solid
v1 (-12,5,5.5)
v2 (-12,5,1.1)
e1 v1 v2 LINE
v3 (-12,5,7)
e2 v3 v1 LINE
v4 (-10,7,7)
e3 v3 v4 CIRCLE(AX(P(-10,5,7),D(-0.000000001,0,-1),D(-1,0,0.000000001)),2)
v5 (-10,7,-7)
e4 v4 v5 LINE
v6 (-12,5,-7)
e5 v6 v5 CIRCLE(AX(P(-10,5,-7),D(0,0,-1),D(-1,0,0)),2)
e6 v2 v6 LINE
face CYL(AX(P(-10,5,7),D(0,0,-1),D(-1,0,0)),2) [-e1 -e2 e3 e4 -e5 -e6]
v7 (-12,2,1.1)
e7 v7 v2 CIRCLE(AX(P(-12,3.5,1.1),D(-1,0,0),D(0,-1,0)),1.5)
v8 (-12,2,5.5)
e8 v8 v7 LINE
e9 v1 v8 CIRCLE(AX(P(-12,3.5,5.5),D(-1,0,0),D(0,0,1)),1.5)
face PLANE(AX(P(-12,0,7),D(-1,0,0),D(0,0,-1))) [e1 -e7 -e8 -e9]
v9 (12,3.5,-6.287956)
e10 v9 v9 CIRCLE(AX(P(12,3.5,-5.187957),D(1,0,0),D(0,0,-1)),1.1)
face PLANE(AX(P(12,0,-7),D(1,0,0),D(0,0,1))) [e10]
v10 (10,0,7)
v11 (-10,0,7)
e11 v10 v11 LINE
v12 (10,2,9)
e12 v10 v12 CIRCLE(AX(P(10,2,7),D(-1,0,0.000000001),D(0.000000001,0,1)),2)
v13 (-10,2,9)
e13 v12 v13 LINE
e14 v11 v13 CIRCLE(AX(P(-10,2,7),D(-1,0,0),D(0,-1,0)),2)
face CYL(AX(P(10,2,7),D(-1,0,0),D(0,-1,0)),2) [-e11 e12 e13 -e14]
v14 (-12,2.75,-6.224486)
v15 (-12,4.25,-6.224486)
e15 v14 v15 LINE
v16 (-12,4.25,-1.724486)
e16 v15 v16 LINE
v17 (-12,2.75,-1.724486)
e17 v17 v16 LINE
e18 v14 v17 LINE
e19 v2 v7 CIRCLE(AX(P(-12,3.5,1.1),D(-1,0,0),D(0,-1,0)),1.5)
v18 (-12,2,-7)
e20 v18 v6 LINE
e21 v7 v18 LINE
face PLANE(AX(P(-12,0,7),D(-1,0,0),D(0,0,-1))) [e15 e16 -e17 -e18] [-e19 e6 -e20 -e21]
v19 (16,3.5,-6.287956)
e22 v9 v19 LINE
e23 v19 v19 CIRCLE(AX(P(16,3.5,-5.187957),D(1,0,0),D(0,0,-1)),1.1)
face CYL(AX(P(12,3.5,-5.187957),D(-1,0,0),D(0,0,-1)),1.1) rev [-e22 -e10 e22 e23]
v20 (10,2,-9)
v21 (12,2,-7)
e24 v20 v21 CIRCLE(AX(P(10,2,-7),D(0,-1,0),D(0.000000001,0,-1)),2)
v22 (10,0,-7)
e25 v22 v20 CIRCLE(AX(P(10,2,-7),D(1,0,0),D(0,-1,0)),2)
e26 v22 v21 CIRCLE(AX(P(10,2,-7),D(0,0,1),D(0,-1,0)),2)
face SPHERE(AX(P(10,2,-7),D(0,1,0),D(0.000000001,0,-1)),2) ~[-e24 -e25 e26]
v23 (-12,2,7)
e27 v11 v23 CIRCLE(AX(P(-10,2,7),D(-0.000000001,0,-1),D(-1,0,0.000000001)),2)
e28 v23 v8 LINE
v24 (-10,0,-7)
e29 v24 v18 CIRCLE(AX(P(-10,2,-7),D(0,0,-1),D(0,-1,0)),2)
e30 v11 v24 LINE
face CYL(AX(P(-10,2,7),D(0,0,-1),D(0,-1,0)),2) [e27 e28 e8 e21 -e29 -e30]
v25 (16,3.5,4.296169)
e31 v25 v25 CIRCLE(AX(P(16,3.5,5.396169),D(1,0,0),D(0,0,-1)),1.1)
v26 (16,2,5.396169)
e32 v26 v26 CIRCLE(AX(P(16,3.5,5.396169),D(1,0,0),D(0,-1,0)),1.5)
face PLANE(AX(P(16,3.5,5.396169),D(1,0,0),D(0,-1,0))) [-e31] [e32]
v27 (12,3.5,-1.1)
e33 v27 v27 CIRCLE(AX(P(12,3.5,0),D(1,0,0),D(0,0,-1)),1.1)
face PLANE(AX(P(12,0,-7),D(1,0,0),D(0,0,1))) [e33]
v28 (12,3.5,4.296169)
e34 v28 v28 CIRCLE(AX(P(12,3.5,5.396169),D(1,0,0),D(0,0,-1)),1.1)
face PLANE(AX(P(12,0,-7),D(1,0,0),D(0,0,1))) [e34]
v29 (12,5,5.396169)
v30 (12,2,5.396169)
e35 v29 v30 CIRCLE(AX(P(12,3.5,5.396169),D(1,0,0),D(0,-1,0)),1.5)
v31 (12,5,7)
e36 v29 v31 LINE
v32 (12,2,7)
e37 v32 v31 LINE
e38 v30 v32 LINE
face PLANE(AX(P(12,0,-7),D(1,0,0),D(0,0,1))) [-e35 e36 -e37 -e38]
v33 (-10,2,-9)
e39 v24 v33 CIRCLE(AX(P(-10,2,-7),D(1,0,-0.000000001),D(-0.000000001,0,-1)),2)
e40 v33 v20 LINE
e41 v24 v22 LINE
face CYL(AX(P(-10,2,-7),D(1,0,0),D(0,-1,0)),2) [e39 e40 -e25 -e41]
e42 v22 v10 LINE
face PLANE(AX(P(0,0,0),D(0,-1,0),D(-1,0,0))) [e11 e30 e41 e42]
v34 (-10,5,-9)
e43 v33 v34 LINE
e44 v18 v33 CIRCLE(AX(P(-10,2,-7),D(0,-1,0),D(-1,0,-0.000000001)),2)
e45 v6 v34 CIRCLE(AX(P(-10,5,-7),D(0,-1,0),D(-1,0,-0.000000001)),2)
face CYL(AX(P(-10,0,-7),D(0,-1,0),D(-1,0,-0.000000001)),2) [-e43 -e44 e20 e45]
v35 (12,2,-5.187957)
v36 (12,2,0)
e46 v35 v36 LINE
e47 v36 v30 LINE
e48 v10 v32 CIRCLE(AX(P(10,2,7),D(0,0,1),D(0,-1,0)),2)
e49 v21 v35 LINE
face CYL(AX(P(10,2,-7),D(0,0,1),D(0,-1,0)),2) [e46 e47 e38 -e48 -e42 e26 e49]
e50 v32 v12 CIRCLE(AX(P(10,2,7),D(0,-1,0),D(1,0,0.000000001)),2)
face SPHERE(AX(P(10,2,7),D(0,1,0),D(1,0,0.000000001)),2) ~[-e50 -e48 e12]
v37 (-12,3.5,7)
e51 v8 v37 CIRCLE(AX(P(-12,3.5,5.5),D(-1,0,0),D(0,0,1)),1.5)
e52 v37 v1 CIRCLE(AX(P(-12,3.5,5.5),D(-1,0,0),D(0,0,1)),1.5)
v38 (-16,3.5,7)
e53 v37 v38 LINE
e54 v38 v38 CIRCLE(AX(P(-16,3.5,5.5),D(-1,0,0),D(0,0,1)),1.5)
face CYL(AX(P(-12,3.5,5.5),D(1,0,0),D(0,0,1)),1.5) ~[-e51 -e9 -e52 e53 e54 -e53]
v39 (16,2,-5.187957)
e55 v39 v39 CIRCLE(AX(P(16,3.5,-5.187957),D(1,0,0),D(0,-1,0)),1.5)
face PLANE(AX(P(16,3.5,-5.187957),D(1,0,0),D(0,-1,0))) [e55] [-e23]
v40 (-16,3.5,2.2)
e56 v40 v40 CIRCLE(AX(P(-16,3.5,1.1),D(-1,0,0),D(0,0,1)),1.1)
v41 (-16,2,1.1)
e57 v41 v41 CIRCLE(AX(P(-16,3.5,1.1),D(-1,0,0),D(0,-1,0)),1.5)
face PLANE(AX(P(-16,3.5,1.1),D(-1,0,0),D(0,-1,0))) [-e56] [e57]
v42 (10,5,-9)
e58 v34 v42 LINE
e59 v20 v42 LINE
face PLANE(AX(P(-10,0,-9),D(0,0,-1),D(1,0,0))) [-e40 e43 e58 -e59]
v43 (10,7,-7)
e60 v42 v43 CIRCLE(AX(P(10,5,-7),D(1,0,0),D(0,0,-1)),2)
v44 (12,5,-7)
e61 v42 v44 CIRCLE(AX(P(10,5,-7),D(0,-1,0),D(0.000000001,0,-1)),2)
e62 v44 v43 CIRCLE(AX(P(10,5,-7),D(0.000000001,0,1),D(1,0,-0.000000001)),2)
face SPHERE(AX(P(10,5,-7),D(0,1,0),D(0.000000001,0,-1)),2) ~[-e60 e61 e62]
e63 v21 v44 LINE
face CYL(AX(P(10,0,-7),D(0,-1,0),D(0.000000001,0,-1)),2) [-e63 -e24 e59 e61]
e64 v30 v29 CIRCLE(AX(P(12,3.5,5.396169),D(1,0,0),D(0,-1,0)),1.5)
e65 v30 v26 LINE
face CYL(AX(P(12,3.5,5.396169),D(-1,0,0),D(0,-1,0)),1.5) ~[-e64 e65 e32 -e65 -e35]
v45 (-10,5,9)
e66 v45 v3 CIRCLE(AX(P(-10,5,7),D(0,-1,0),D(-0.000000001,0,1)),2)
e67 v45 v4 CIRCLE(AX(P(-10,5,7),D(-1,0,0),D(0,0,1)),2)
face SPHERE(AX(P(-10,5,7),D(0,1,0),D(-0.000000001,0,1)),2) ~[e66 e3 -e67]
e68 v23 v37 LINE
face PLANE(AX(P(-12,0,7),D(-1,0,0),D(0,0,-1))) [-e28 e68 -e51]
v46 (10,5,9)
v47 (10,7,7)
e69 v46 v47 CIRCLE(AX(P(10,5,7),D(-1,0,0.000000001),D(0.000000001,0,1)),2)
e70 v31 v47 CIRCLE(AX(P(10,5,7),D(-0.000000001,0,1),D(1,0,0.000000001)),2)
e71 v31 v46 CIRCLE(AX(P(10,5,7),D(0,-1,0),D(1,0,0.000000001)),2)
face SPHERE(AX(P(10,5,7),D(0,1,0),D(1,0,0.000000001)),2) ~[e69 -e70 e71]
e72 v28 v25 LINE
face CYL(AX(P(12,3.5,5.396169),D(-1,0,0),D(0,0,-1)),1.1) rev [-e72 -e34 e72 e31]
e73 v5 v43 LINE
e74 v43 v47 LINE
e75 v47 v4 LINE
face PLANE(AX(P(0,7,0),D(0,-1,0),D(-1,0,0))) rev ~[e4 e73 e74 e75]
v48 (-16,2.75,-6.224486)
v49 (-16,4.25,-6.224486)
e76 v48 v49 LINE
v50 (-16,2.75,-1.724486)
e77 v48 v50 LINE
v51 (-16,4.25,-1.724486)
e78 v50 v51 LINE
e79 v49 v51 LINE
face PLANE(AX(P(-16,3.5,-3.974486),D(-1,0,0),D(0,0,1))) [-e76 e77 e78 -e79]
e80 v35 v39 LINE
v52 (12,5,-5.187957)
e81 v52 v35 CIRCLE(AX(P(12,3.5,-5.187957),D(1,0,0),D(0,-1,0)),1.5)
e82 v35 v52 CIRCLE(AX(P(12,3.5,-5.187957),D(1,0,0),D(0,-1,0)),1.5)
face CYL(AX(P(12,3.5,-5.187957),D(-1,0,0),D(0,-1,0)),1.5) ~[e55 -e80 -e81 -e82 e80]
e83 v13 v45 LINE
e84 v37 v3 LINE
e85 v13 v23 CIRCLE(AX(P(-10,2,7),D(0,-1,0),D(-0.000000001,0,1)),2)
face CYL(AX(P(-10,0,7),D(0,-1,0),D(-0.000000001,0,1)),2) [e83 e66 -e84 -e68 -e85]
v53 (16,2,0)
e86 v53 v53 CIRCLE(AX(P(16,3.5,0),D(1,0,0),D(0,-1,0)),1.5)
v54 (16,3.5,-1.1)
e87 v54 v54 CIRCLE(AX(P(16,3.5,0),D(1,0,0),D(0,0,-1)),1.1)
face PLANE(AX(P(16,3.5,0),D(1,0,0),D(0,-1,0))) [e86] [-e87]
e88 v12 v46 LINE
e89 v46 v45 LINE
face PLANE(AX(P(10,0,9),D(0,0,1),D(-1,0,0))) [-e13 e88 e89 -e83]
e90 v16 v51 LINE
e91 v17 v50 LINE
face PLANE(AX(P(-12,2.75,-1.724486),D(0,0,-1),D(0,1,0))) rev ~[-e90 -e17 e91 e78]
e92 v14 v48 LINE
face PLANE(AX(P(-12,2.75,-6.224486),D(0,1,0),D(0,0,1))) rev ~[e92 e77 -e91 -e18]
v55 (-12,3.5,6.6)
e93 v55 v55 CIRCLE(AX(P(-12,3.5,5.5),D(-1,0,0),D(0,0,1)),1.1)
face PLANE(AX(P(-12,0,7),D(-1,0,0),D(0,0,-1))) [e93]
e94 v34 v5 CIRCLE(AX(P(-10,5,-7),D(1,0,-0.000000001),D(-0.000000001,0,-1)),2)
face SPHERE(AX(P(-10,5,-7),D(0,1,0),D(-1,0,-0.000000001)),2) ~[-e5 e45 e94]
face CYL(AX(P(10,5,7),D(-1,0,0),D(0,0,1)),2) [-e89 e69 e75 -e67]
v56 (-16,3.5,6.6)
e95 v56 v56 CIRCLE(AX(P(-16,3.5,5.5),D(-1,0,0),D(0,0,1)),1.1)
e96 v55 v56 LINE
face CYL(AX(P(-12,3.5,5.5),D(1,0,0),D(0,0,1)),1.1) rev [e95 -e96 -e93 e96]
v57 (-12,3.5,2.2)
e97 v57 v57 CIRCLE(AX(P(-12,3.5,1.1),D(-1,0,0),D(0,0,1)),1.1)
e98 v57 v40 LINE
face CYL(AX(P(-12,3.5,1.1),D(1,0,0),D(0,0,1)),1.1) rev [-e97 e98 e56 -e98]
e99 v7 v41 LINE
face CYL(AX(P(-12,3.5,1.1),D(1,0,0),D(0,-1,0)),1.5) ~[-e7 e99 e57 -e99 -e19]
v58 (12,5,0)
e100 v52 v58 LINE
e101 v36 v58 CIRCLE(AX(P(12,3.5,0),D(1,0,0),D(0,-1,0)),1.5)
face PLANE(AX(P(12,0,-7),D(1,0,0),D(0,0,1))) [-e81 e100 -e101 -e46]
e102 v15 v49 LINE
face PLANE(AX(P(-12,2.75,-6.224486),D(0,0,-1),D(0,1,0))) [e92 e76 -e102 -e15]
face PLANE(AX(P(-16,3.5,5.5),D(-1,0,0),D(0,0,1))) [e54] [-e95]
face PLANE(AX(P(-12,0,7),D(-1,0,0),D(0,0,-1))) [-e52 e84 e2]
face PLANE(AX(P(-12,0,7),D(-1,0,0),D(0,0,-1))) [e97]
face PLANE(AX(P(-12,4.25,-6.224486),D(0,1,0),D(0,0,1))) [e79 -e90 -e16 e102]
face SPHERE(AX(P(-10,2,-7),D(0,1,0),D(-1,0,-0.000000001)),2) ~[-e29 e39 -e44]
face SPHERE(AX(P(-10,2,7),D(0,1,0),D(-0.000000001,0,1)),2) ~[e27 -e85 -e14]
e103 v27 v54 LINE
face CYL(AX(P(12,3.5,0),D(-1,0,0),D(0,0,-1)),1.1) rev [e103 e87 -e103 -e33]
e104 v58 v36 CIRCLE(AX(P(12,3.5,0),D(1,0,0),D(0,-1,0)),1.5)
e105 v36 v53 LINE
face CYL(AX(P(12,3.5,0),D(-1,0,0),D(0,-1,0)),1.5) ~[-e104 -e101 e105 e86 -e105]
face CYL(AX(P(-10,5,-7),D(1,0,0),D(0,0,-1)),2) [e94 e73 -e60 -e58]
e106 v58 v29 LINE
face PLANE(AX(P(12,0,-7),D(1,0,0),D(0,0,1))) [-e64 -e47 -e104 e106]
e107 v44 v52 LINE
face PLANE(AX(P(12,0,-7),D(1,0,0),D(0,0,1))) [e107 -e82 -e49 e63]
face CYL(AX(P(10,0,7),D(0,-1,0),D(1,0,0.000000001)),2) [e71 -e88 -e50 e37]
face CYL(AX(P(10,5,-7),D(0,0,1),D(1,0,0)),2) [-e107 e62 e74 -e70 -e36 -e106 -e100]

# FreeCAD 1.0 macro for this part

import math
import FreeCAD as App
import Part
import Sketcher
Q = App.Units.Quantity


def edges_at(feature, points):
    """Names of the edges that pass closest to the given points."""
    edges = feature.Shape.Edges
    near = lambda p: min(range(len(edges)), key=lambda i: edges[i].distToShape(Part.Vertex(*p))[0])
    return sorted({f"Edge{near(p) + 1}" for p in points})


def add_polygon(sketch, points):
    """Adds a closed chain of lines whose ends are joined by coincident constraints."""
    first, n = sketch.GeometryCount, len(points)
    for a, b in zip(points, points[1:] + points[:1]):
        sketch.addGeometry(Part.LineSegment(App.Vector(*a, 0), App.Vector(*b, 0)), False)
    for i in range(n):
        sketch.addConstraint(Sketcher.Constraint("Coincident", first + i, 2, first + (i + 1) % n, 1))

doc = App.newDocument("Part")
body = doc.addObject("PartDesign::Body", "Body")

# Sketch on XZ plane
sketch1 = doc.addObject("Sketcher::SketchObject", "Sketch")
body.addObject(sketch1)
sketch1.AttachmentSupport = (doc.XZ_Plane, [""])
sketch1.MapMode = "FlatFace"
sketch1.addGeometry([
    Part.LineSegment(App.Vector(-10, 9, 0), App.Vector(10, 9, 0)),  # 0
    Part.ArcOfCircle(Part.Circle(App.Vector(10, 7, 0), App.Vector(0, 0, 1), 2), math.radians(0), math.radians(90)),  # 1
    Part.LineSegment(App.Vector(12, 7, 0), App.Vector(12, -7, 0)),  # 2
    Part.ArcOfCircle(Part.Circle(App.Vector(10, -7, 0), App.Vector(0, 0, 1), 2), math.radians(-90), math.radians(0)),  # 3
    Part.LineSegment(App.Vector(10, -9, 0), App.Vector(-10, -9, 0)),  # 4
    Part.ArcOfCircle(Part.Circle(App.Vector(-10, -7, 0), App.Vector(0, 0, 1), 2), math.radians(-180), math.radians(-90)),  # 5
    Part.LineSegment(App.Vector(-12, -7, 0), App.Vector(-12, 7, 0)),  # 6
    Part.ArcOfCircle(Part.Circle(App.Vector(-10, 7, 0), App.Vector(0, 0, 1), 2), math.radians(90), math.radians(180)),  # 7
], False)
sketch1.addConstraint([
    Sketcher.Constraint("Tangent", 0, 2, 1, 2),
    Sketcher.Constraint("Tangent", 1, 1, 2, 1),
    Sketcher.Constraint("Tangent", 2, 2, 3, 2),
    Sketcher.Constraint("Tangent", 3, 1, 4, 1),
    Sketcher.Constraint("Tangent", 4, 2, 5, 2),
    Sketcher.Constraint("Tangent", 5, 1, 6, 1),
    Sketcher.Constraint("Tangent", 6, 2, 7, 2),
    Sketcher.Constraint("Tangent", 7, 1, 0, 1),
    Sketcher.Constraint("Horizontal", 0),
    Sketcher.Constraint("Vertical", 2),
    Sketcher.Constraint("Horizontal", 4),
    Sketcher.Constraint("Vertical", 6),
    Sketcher.Constraint("Equal", 1, 3),
    Sketcher.Constraint("Equal", 3, 5),
    Sketcher.Constraint("Equal", 5, 7),
    Sketcher.Constraint("Symmetric", 1, 3, 5, 3, -1, 1),
    Sketcher.Constraint("Radius", 1, Q("2 mm")),
    Sketcher.Constraint("DistanceX", 0, 1, 0, 2, Q("20 mm")),
    Sketcher.Constraint("DistanceY", 2, 2, 2, 1, Q("14 mm")),
])
pad1 = doc.addObject("PartDesign::Pad", "Pad")
body.addObject(pad1)
pad1.Profile = sketch1
pad1.Length = 7
pad1.Reversed = True
doc.recompute()

fillet = doc.addObject("PartDesign::Fillet", "Fillet")
body.addObject(fillet)
fillet.Base = (pad1, edges_at(pad1, [
    (11.414, 7, 8.414),
    (12, 7, 0),
    (11.414, 7, -8.414),
    (0, 7, -9),
    (-11.414, 7, -8.414),
    (-12, 7, 0),
    (-11.414, 7, 8.414),
    (0, 7, 9),
]))
fillet.Radius = 2
doc.recompute()

fillet2 = doc.addObject("PartDesign::Fillet", "Fillet001")
body.addObject(fillet2)
fillet2.Base = (fillet, edges_at(fillet, [
    (12, 0, 0),
    (11.414, 0, 8.414),
    (0, 0, 9),
    (-11.414, 0, 8.414),
    (-12, 0, 0),
    (-11.414, 0, -8.414),
    (0, 0, -9),
    (11.414, 0, -8.414),
]))
fillet2.Radius = 2

# Sketch on YZ plane
sketch2 = doc.addObject("Sketcher::SketchObject", "Sketch001")
body.addObject(sketch2)
sketch2.AttachmentSupport = (doc.YZ_Plane, [""])
sketch2.MapMode = "FlatFace"
sketch2.AttachmentOffset = App.Placement(App.Vector(0, 0, 12), App.Rotation())
sketch2.addGeometry([
    Part.Circle(App.Vector(3.5, 0, 0), App.Vector(0, 0, 1), 1.5),  # 0
    Part.Circle(App.Vector(3.5, 0, 0), App.Vector(0, 0, 1), 1.1),  # 1
    Part.Circle(App.Vector(3.5, -5.2, 0), App.Vector(0, 0, 1), 1.5),  # 2
    Part.Circle(App.Vector(3.5, -5.2, 0), App.Vector(0, 0, 1), 1.1),  # 3
    Part.Circle(App.Vector(3.5, 5.4, 0), App.Vector(0, 0, 1), 1.5),  # 4
    Part.Circle(App.Vector(3.5, 5.4, 0), App.Vector(0, 0, 1), 1.1),  # 5
], False)
sketch2.addConstraint([
    Sketcher.Constraint("Coincident", 1, 3, 0, 3),
    Sketcher.Constraint("Coincident", 3, 3, 2, 3),
    Sketcher.Constraint("Coincident", 5, 3, 4, 3),
    Sketcher.Constraint("Equal", 0, 2),
    Sketcher.Constraint("Equal", 1, 3),
    Sketcher.Constraint("Equal", 2, 4),
    Sketcher.Constraint("Equal", 3, 5),
    Sketcher.Constraint("PointOnObject", 0, 3, -1),
    Sketcher.Constraint("Vertical", 1, 3, 2, 3),
    Sketcher.Constraint("Vertical", 3, 3, 4, 3),
    Sketcher.Constraint("Diameter", 0, Q("3 mm")),
    Sketcher.Constraint("Diameter", 1, Q("2.2 mm")),
    Sketcher.Constraint("DistanceX", -1, 1, 0, 3, Q("3.5 mm")),
    Sketcher.Constraint("DistanceY", -1, 1, 4, 3, Q("5.396169 mm")),
    Sketcher.Constraint("DistanceY", 2, 3, -1, 1, Q("5.187957 mm")),
])
pad2 = doc.addObject("PartDesign::Pad", "Pad001")
body.addObject(pad2)
pad2.Profile = sketch2
pad2.Length = 4

# Sketch on YZ plane
sketch3 = doc.addObject("Sketcher::SketchObject", "Sketch002")
body.addObject(sketch3)
sketch3.AttachmentSupport = (doc.YZ_Plane, [""])
sketch3.MapMode = "FlatFace"
sketch3.AttachmentOffset = App.Placement(App.Vector(0, 0, -12), App.Rotation())
sketch3.addGeometry(Part.Circle(App.Vector(3.5, 5.5, 0), App.Vector(0, 0, 1), 1.5), False)  # 0
sketch3.addGeometry(Part.Circle(App.Vector(3.5, 5.5, 0), App.Vector(0, 0, 1), 1.1), False)  # 1
sketch3.addGeometry(Part.Circle(App.Vector(3.5, 1.1, 0), App.Vector(0, 0, 1), 1.5), False)  # 2
sketch3.addGeometry(Part.Circle(App.Vector(3.5, 1.1, 0), App.Vector(0, 0, 1), 1.1), False)  # 3
add_polygon(sketch3, [(4.2, -6.2), (2.8, -6.2), (2.8, -1.7), (4.2, -1.7)])  # lines 4-7
sketch3.addConstraint([
    Sketcher.Constraint("Horizontal", 4),
    Sketcher.Constraint("Vertical", 5),
    Sketcher.Constraint("Horizontal", 6),
    Sketcher.Constraint("Vertical", 7),
    Sketcher.Constraint("Coincident", 1, 3, 0, 3),
    Sketcher.Constraint("Coincident", 3, 3, 2, 3),
    Sketcher.Constraint("Equal", 0, 2),
    Sketcher.Constraint("Equal", 1, 3),
    Sketcher.Constraint("Vertical", 1, 3, 2, 3),
    Sketcher.Constraint("Diameter", 0, Q("3 mm")),
    Sketcher.Constraint("Diameter", 1, Q("2.2 mm")),
    Sketcher.Constraint("DistanceX", 4, 2, 4, 1, Q("1.5 mm")),
    Sketcher.Constraint("DistanceY", 5, 1, 5, 2, Q("4.5 mm")),
    Sketcher.Constraint("DistanceX", -1, 1, 0, 3, Q("3.5 mm")),
    Sketcher.Constraint("DistanceY", -1, 1, 0, 3, Q("5.5 mm")),
    Sketcher.Constraint("DistanceY", -1, 1, 2, 3, Q("1.1 mm")),
    Sketcher.Constraint("DistanceX", -1, 1, 4, 2, Q("2.75 mm")),
    Sketcher.Constraint("DistanceY", 4, 2, -1, 1, Q("6.224486 mm")),
])
pad3 = doc.addObject("PartDesign::Pad", "Pad002")
body.addObject(pad3)
pad3.Profile = sketch3
pad3.Length = 4
pad3.Reversed = True

doc.recompute()
